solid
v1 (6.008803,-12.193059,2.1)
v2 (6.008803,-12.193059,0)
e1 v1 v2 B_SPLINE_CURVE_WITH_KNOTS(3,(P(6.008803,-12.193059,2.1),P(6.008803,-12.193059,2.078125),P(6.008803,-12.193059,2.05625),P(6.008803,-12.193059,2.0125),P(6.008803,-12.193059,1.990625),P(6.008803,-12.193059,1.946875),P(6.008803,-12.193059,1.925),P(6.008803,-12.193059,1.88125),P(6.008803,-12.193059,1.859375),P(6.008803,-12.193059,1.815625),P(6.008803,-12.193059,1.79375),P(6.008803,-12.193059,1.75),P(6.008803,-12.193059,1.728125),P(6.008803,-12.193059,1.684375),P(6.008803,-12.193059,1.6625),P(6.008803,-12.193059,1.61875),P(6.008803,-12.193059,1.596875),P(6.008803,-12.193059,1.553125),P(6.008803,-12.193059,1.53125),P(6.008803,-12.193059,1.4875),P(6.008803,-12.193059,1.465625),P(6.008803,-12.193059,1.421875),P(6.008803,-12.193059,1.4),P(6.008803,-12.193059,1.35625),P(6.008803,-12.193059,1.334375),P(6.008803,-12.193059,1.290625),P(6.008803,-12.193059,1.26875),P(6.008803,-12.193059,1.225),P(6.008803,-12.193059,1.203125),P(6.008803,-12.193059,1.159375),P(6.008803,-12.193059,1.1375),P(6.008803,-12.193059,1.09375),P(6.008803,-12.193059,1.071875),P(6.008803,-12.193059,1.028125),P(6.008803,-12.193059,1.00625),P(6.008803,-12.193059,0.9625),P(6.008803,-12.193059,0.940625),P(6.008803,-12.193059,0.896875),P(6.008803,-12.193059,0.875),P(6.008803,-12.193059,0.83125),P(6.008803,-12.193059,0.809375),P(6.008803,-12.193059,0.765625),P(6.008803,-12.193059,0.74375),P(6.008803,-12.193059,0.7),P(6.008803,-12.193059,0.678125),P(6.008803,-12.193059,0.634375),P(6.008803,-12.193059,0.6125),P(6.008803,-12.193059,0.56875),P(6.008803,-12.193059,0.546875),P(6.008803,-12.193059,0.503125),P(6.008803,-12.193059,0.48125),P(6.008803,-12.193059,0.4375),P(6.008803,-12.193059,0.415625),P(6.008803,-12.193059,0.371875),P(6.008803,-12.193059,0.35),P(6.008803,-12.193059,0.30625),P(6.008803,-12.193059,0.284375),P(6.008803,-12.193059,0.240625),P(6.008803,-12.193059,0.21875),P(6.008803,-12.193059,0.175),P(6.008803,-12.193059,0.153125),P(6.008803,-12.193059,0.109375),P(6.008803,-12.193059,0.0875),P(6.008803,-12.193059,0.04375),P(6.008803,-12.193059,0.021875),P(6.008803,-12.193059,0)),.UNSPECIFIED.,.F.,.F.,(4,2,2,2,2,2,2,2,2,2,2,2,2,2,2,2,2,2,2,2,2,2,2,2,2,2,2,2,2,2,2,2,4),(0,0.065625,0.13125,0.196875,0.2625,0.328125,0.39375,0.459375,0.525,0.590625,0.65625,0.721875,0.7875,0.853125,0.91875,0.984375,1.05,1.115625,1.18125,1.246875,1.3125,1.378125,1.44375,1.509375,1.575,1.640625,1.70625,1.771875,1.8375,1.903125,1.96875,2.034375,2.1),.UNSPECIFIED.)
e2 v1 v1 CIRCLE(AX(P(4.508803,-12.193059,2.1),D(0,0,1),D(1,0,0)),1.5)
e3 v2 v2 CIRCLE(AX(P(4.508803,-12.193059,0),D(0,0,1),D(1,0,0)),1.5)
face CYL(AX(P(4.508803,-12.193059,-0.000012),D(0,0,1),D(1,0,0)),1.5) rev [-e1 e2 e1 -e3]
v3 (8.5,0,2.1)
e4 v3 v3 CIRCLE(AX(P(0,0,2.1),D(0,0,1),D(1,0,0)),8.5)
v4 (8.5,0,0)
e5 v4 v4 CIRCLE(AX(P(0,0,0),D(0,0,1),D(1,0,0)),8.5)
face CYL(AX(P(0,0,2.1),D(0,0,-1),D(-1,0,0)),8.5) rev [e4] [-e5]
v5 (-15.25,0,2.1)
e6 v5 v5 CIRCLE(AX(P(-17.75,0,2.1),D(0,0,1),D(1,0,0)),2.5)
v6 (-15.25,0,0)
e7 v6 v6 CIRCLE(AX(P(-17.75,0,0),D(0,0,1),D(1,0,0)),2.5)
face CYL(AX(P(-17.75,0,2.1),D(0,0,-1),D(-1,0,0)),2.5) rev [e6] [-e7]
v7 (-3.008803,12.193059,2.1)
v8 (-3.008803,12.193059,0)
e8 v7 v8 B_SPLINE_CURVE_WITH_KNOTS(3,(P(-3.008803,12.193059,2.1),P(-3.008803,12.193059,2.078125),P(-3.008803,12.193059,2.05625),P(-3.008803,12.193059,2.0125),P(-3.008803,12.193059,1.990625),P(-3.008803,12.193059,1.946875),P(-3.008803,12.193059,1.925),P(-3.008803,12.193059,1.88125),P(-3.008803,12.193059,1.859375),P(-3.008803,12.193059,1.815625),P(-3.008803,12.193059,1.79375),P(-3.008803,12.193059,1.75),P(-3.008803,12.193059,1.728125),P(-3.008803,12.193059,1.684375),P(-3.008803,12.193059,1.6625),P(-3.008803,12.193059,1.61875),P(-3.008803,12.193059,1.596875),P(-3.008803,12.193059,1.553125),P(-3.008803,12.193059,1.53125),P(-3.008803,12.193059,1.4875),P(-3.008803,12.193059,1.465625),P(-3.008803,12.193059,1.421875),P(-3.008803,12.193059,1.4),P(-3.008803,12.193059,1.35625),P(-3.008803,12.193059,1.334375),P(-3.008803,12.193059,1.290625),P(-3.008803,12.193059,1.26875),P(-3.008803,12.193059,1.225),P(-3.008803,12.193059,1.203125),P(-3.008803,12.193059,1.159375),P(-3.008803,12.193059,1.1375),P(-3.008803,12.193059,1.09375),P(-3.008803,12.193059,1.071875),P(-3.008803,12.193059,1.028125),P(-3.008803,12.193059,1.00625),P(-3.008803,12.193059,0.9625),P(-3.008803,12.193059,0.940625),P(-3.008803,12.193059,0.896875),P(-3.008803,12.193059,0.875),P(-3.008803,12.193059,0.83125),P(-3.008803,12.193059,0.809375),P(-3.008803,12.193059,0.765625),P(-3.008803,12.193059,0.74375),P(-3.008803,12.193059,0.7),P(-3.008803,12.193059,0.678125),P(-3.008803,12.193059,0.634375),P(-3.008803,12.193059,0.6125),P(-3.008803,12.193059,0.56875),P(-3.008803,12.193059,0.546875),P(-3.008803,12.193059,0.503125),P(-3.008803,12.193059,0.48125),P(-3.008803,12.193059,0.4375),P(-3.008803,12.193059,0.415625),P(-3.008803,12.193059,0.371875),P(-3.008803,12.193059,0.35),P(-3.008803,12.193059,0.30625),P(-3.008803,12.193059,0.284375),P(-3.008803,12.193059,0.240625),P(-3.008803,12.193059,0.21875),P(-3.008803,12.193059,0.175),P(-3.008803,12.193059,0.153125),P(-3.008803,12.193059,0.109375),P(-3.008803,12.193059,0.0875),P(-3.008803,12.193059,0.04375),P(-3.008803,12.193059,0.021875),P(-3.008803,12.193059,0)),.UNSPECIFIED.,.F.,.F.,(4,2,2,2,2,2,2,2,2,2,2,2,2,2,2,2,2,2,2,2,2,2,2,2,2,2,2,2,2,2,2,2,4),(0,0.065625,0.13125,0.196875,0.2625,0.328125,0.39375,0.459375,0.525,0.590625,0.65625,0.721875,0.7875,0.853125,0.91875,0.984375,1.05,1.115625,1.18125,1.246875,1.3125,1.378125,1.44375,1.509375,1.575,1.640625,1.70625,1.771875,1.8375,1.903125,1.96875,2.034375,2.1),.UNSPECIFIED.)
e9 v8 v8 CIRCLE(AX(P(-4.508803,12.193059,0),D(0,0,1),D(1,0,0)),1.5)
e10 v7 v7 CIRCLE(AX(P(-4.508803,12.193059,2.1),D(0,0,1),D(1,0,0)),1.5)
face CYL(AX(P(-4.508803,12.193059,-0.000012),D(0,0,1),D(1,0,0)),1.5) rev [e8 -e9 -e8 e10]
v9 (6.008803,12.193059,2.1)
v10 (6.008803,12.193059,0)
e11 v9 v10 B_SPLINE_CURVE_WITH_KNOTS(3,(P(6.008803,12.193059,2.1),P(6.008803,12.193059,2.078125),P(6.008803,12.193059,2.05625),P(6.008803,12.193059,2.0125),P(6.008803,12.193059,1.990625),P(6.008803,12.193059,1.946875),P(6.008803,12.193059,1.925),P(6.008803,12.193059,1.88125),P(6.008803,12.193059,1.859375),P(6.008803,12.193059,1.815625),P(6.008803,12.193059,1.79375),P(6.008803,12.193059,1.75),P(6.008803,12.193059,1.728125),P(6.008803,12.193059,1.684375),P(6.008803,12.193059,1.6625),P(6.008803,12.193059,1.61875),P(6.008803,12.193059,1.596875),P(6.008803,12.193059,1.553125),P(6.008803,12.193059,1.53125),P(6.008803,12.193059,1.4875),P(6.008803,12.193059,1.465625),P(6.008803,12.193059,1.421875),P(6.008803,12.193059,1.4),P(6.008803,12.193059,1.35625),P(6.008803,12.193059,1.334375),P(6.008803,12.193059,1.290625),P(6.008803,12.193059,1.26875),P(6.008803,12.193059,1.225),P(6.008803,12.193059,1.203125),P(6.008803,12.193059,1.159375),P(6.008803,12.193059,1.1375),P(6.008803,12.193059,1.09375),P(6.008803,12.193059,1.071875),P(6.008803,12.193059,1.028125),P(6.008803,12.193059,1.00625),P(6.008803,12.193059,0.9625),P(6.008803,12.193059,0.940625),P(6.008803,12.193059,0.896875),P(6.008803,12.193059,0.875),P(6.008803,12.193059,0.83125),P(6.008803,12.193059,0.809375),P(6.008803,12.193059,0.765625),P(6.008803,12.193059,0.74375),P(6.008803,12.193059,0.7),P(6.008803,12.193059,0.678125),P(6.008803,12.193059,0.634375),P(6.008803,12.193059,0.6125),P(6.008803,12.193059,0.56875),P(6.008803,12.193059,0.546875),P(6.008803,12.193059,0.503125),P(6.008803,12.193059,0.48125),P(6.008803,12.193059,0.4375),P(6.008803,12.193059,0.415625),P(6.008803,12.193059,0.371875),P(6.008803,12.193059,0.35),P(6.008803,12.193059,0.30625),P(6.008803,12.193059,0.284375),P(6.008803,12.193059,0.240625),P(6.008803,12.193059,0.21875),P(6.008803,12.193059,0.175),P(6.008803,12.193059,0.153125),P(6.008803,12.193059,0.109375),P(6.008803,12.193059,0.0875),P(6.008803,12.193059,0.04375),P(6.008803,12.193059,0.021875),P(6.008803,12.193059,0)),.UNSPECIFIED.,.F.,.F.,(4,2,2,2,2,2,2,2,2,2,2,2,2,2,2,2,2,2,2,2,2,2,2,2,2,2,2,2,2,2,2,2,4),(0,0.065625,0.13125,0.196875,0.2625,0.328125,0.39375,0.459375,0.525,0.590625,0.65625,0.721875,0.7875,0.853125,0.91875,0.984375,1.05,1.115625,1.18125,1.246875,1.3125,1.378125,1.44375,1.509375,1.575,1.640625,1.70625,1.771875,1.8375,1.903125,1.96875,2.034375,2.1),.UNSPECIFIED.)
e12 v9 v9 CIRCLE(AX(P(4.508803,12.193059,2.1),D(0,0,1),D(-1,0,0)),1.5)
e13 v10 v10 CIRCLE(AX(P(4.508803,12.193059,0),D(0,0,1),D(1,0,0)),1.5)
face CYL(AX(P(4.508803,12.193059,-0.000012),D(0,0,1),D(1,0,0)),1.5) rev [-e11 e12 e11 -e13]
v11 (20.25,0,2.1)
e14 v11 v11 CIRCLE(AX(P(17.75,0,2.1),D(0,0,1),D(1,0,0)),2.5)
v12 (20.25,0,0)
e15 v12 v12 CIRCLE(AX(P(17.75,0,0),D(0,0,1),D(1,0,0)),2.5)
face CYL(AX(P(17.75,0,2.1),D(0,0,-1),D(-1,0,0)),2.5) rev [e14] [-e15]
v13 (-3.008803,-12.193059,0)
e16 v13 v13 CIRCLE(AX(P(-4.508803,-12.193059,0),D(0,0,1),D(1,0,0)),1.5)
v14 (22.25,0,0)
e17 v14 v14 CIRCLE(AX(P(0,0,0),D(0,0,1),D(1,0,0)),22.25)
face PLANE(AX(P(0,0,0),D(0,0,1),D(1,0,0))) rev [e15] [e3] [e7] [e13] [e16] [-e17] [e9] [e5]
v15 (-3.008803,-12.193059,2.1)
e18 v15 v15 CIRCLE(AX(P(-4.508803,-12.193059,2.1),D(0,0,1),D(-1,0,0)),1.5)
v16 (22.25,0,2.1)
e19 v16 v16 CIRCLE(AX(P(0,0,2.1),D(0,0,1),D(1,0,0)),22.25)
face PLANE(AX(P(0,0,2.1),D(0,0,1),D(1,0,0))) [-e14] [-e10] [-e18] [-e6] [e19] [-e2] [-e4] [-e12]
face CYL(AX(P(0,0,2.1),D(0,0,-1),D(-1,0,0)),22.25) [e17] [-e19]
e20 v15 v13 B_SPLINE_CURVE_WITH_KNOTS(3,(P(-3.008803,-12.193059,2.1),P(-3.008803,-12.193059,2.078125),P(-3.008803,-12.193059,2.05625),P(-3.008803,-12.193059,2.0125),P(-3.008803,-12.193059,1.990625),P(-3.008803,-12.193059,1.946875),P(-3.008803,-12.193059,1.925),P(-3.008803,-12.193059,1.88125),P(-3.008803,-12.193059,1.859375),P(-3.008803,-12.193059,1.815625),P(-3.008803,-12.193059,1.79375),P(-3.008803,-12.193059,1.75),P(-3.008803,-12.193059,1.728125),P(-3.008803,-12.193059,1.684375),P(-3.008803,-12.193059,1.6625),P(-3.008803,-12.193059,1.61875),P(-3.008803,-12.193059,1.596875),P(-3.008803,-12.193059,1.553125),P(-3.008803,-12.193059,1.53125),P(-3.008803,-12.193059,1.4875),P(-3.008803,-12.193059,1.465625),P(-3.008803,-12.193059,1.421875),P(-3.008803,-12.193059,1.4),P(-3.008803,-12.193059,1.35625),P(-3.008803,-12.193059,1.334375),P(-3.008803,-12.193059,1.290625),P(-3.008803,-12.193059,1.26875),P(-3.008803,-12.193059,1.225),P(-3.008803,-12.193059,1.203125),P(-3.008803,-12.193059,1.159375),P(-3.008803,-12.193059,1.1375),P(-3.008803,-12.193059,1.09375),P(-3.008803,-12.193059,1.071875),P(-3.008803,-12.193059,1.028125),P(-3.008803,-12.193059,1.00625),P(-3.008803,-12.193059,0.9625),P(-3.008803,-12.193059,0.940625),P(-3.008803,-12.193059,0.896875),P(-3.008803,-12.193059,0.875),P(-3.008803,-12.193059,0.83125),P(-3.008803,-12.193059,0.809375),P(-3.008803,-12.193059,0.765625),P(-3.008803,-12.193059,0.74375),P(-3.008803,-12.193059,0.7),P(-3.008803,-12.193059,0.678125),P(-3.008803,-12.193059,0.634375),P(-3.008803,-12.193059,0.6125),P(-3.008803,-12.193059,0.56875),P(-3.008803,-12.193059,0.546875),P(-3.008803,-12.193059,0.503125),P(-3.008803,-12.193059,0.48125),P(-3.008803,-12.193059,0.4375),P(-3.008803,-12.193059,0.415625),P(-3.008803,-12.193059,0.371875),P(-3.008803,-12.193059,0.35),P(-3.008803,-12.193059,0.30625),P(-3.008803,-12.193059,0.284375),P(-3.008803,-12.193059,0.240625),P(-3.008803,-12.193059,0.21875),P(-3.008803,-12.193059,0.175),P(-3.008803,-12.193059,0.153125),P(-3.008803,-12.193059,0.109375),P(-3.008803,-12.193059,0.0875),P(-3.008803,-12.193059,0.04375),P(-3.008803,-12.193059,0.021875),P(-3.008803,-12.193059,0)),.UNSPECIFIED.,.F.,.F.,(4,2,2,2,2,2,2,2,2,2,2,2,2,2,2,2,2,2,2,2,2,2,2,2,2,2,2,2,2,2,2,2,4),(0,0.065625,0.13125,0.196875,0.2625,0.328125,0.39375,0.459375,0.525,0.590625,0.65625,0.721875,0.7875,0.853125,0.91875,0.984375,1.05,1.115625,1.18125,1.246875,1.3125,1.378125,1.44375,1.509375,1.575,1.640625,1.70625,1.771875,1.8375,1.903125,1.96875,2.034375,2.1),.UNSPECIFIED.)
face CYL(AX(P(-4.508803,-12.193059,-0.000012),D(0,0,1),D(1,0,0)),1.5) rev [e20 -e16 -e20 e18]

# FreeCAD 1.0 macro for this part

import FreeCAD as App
import Part
import Sketcher

V = App.Vector
Q = App.Units.Quantity

doc = App.newDocument("Part")
body = doc.addObject("PartDesign::Body", "Body")

sketch1 = doc.addObject("Sketcher::SketchObject", "Sketch")
body.addObject(sketch1)
sketch1.AttachmentSupport = (doc.XY_Plane, [""])
sketch1.MapMode = "FlatFace"
sketch1.addGeometry(Part.Circle(V(0, 0, 0), V(0, 0, 1), 22.25), False)
sketch1.addGeometry(Part.Circle(V(-17.75, 0, 0), V(0, 0, 1), 2.5), False)
sketch1.addGeometry(Part.Circle(V(0, 0, 0), V(0, 0, 1), 8.5), False)
sketch1.addGeometry(Part.Circle(V(17.75, 0, 0), V(0, 0, 1), 2.5), False)
sketch1.addConstraint(Sketcher.Constraint("Coincident", 0, 3, -1, 1))
sketch1.addConstraint(Sketcher.Constraint("Coincident", 2, 3, -1, 1))
sketch1.addConstraint(Sketcher.Constraint("Equal", 1, 3))
sketch1.addConstraint(Sketcher.Constraint("Symmetric", 1, 3, 3, 3, -1, 1))
sketch1.addConstraint(Sketcher.Constraint("PointOnObject", 1, 3, -1))
sketch1.addConstraint(Sketcher.Constraint("Diameter", 1, Q("5 mm")))
sketch1.addConstraint(Sketcher.Constraint("Diameter", 2, Q("17 mm")))
sketch1.addConstraint(Sketcher.Constraint("Diameter", 0, Q("44.5 mm")))
sketch1.addConstraint(Sketcher.Constraint("DistanceX", 1, 3, 3, 3, Q("35.5 mm")))
pad1 = doc.addObject("PartDesign::Pad", "Pad")
body.addObject(pad1)
pad1.Profile = sketch1
pad1.Length = 2.1

sketch2 = doc.addObject("Sketcher::SketchObject", "Sketch001")
body.addObject(sketch2)
sketch2.AttachmentSupport = (doc.XY_Plane, [""])
sketch2.MapMode = "FlatFace"
sketch2.addGeometry(Part.Circle(V(4.508803, -12.193059, 0), V(0, 0, 1), 1.5), False)
sketch2.addGeometry(Part.Circle(V(4.508803, 12.193059, 0), V(0, 0, 1), 1.5), False)
sketch2.addGeometry(Part.Circle(V(-4.508803, -12.193059, 0), V(0, 0, 1), 1.5), False)
sketch2.addGeometry(Part.Circle(V(-4.508803, 12.193059, 0), V(0, 0, 1), 1.5), False)
sketch2.addConstraint(Sketcher.Constraint("Equal", 0, 1))
sketch2.addConstraint(Sketcher.Constraint("Equal", 1, 2))
sketch2.addConstraint(Sketcher.Constraint("Equal", 2, 3))
sketch2.addConstraint(Sketcher.Constraint("Symmetric", 1, 3, 2, 3, -1, 1))
sketch2.addConstraint(Sketcher.Constraint("Symmetric", 0, 3, 3, 3, -1, 1))
sketch2.addConstraint(Sketcher.Constraint("Symmetric", 0, 3, 2, 3, -2))
sketch2.addConstraint(Sketcher.Constraint("Diameter", 0, Q("3 mm")))
sketch2.addConstraint(Sketcher.Constraint("DistanceY", 0, 3, -1, 1, Q("12.193059 mm")))
sketch2.addConstraint(Sketcher.Constraint("DistanceX", -1, 1, 0, 3, Q("4.508803 mm")))
pocket1 = doc.addObject("PartDesign::Pocket", "Pocket")
body.addObject(pocket1)
pocket1.Profile = sketch2
pocket1.Type = "ThroughAll"
pocket1.Midplane = True

doc.recompute()
